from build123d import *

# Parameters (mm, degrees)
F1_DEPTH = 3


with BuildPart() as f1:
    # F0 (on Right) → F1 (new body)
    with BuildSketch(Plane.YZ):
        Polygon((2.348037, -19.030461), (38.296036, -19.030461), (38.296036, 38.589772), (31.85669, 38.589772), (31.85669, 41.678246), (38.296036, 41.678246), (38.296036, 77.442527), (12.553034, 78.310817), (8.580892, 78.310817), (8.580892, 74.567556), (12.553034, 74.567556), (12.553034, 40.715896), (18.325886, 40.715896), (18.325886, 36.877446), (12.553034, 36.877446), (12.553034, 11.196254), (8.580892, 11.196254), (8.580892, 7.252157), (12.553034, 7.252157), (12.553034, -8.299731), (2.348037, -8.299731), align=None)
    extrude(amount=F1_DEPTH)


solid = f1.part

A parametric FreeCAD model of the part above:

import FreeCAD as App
import Part
import Sketcher


def add_polygon(sketch, points):
    """Adds a closed chain of lines whose ends are joined by coincident constraints."""
    first, n = sketch.GeometryCount, len(points)
    for a, b in zip(points, points[1:] + points[:1]):
        sketch.addGeometry(Part.LineSegment(App.Vector(*a, 0), App.Vector(*b, 0)), False)
    for i in range(n):
        sketch.addConstraint(Sketcher.Constraint("Coincident", first + i, 2, first + (i + 1) % n, 1))

doc = App.newDocument("Part")
body = doc.addObject("PartDesign::Body", "Body")

# Sketch on YZ plane
sketch1 = body.newObject("Sketcher::SketchObject", "Sketch")
sketch1.AttachmentSupport = (doc.getObject("YZ_Plane"), [""])
sketch1.MapMode = "FlatFace"
add_polygon(sketch1, [(2.3, -19), (38.3, -19), (38.3, 38.6), (31.9, 38.6), (31.9, 41.7), (38.3, 41.7), (38.3, 77.4), (12.6, 78.3), (8.6, 78.3), (8.6, 74.6), (12.6, 74.6), (12.6, 40.7), (18.3, 40.7), (18.3, 36.9), (12.6, 36.9), (12.6, 11.2), (8.6, 11.2), (8.6, 7.3), (12.6, 7.3), (12.6, -8.3), (2.3, -8.3)])  # lines 0-20
sketch1.addConstraint(Sketcher.Constraint("Horizontal", 0))
sketch1.addConstraint(Sketcher.Constraint("Vertical", 1))
sketch1.addConstraint(Sketcher.Constraint("Horizontal", 2))
sketch1.addConstraint(Sketcher.Constraint("Vertical", 3))
sketch1.addConstraint(Sketcher.Constraint("Horizontal", 4))
sketch1.addConstraint(Sketcher.Constraint("Vertical", 5))
sketch1.addConstraint(Sketcher.Constraint("Horizontal", 7))
sketch1.addConstraint(Sketcher.Constraint("Vertical", 8))
sketch1.addConstraint(Sketcher.Constraint("Horizontal", 9))
sketch1.addConstraint(Sketcher.Constraint("Vertical", 10))
sketch1.addConstraint(Sketcher.Constraint("Horizontal", 11))
sketch1.addConstraint(Sketcher.Constraint("Vertical", 12))
sketch1.addConstraint(Sketcher.Constraint("Horizontal", 13))
sketch1.addConstraint(Sketcher.Constraint("Vertical", 14))
sketch1.addConstraint(Sketcher.Constraint("Horizontal", 15))
sketch1.addConstraint(Sketcher.Constraint("Vertical", 16))
sketch1.addConstraint(Sketcher.Constraint("Horizontal", 17))
sketch1.addConstraint(Sketcher.Constraint("Vertical", 18))
sketch1.addConstraint(Sketcher.Constraint("Horizontal", 19))
sketch1.addConstraint(Sketcher.Constraint("Vertical", 20))
sketch1.addConstraint(Sketcher.Constraint("Vertical", 1, 2, 4, 2))
sketch1.addConstraint(Sketcher.Constraint("Vertical", 6, 2, 9, 2))
sketch1.addConstraint(Sketcher.Constraint("Vertical", 10, 2, 13, 2))
sketch1.addConstraint(Sketcher.Constraint("Vertical", 8, 2, 15, 2))
sketch1.addConstraint(Sketcher.Constraint("Vertical", 14, 2, 17, 2))
sketch1.addConstraint(Sketcher.Constraint("DistanceX", 0, 1, 0, 2, 35.947999))
sketch1.addConstraint(Sketcher.Constraint("DistanceX", 7, 2, 7, 1, 3.972142))
sketch1.addConstraint(Sketcher.Constraint("DistanceY", 5, 1, 5, 2, 35.764281))
sketch1.addConstraint(Sketcher.Constraint("DistanceY", 8, 2, 8, 1, 3.743261))
sketch1.addConstraint(Sketcher.Constraint("DistanceY", 10, 2, 10, 1, 33.85166))
sketch1.addConstraint(Sketcher.Constraint("DistanceY", 12, 2, 12, 1, 3.83845))
sketch1.addConstraint(Sketcher.Constraint("DistanceY", 14, 2, 14, 1, 25.681192))
sketch1.addConstraint(Sketcher.Constraint("DistanceY", 20, 2, 20, 1, 10.73073))
sketch1.addConstraint(Sketcher.Constraint("DistanceX", 7, 2, 3, 2, 23.275798))
sketch1.addConstraint(Sketcher.Constraint("DistanceY", 12, 2, 3, 2, 4.8008))
sketch1.addConstraint(Sketcher.Constraint("Distance", 6, 25.757641))
sketch1.addConstraint(Sketcher.Constraint("DistanceX", 11, 1, 11, 2, 5.772852))
sketch1.addConstraint(Sketcher.Constraint("DistanceY", 1, 1, 1, 2, 57.620233))
sketch1.addConstraint(Sketcher.Constraint("DistanceY", 3, 1, 3, 2, 3.088474))
sketch1.addConstraint(Sketcher.Constraint("DistanceY", 16, 2, 16, 1, 3.944097))
sketch1.addConstraint(Sketcher.Constraint("DistanceY", 0, 2, -1, 1, 19.030461))
sketch1.addConstraint(Sketcher.Constraint("DistanceX", -1, 1, 2, 2, 31.85669))
pad1 = body.newObject("PartDesign::Pad", "Pad")
pad1.Profile = sketch1
pad1.Length = 3

doc.recompute()
